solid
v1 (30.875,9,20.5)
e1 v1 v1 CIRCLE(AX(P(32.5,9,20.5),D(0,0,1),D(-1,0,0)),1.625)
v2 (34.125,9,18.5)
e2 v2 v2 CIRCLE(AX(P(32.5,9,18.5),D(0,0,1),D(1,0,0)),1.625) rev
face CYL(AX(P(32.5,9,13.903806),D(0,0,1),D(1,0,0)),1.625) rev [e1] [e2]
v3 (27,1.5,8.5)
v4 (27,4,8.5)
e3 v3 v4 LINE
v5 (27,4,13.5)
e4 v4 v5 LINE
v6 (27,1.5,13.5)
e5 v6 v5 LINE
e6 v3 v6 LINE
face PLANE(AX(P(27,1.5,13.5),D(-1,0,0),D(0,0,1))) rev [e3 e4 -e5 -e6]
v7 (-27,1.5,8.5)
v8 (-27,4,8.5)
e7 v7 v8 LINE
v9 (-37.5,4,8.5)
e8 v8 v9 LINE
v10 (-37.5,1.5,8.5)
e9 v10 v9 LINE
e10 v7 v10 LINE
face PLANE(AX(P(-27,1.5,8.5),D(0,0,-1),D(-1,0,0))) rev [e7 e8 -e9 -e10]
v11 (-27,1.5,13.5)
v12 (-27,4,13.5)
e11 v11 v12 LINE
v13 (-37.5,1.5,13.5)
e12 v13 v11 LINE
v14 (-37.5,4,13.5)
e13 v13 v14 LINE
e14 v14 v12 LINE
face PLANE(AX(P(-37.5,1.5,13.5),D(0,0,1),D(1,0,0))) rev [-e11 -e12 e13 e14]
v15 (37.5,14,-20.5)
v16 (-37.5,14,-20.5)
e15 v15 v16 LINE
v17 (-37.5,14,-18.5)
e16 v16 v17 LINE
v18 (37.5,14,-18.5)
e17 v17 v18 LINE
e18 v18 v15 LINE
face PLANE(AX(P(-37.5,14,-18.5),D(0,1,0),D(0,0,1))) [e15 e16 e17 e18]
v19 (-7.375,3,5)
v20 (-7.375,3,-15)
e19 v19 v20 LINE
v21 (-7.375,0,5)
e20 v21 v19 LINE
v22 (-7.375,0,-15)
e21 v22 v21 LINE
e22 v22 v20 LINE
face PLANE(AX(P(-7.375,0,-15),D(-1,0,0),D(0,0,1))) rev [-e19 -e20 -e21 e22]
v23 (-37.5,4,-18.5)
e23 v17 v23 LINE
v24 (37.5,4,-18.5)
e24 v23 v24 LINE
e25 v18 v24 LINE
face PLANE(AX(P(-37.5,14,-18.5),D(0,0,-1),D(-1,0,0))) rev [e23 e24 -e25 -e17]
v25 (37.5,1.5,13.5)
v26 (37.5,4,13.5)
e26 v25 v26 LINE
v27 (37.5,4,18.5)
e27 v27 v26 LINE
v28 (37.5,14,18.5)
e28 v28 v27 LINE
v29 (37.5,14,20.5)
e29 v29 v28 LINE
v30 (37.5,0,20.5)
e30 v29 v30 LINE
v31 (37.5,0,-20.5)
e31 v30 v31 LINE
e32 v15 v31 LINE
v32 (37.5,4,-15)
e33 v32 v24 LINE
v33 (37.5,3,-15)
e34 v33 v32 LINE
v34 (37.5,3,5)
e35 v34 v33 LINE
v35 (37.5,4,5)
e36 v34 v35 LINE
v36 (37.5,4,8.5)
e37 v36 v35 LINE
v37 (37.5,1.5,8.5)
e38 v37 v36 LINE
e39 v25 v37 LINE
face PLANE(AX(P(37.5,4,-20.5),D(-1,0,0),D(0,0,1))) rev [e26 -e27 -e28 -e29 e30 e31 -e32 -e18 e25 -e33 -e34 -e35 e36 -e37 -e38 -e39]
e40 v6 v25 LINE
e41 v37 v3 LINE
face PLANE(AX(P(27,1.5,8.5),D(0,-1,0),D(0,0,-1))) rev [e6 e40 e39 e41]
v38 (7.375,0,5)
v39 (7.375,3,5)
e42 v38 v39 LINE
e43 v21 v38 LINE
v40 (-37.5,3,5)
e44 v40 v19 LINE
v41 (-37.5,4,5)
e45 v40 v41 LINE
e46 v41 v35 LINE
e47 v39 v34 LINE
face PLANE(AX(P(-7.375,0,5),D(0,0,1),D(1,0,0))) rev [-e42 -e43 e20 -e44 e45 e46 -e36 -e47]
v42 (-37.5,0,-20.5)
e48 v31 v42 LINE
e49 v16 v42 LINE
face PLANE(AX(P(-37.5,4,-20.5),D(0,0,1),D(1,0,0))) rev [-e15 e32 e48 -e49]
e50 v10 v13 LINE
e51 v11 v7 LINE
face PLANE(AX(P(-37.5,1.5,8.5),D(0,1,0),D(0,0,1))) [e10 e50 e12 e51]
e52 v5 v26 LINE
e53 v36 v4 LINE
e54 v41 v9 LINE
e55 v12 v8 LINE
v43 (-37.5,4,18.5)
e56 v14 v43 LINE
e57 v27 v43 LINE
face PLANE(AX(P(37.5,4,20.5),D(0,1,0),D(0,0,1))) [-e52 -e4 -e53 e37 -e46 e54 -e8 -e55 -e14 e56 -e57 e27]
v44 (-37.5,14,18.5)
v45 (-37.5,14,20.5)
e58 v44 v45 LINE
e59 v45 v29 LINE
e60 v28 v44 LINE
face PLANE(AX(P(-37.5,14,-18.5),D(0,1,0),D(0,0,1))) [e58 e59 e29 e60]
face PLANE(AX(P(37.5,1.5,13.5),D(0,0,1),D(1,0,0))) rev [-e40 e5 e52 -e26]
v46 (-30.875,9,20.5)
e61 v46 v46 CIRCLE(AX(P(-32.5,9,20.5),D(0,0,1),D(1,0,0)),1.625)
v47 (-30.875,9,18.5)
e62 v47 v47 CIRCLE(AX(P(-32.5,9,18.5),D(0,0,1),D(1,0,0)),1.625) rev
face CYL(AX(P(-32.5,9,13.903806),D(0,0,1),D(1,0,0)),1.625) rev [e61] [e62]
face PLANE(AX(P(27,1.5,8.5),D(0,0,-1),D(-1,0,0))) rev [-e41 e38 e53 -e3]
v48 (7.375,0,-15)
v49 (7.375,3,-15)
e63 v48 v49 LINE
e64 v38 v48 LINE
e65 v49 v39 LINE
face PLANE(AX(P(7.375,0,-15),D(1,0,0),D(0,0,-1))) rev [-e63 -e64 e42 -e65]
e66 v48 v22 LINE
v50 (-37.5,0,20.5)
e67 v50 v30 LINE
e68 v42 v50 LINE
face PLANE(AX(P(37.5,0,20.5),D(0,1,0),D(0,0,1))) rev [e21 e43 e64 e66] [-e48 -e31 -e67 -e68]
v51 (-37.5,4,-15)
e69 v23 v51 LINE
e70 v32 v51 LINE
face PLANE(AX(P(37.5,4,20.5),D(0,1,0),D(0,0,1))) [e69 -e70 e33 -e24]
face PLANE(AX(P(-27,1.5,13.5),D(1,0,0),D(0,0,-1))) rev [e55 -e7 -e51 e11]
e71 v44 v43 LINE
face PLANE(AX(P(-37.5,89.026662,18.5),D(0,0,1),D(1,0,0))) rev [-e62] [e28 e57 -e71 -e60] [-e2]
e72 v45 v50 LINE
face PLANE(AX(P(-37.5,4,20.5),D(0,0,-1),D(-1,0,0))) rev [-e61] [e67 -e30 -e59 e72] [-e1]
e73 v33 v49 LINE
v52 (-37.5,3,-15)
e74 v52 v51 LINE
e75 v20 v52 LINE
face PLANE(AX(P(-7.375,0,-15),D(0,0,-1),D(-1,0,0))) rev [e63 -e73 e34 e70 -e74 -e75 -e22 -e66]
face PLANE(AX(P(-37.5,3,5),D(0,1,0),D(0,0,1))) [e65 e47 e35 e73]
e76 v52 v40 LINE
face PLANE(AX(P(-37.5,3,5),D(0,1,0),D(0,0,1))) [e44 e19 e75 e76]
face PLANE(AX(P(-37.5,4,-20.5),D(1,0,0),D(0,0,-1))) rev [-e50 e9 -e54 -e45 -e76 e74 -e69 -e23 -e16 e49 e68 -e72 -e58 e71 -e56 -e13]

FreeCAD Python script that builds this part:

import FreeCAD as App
import Part
import Sketcher
from FreeCAD import Vector
Q = App.Units.Quantity


def add_polygon(sketch, points):
    """Adds a closed chain of lines whose ends are joined by coincident constraints."""
    first, n = sketch.GeometryCount, len(points)
    for a, b in zip(points, points[1:] + points[:1]):
        sketch.addGeometry(Part.LineSegment(App.Vector(*a, 0), App.Vector(*b, 0)), False)
    for i in range(n):
        sketch.addConstraint(Sketcher.Constraint("Coincident", first + i, 2, first + (i + 1) % n, 1))

doc = App.newDocument("Part")
body = doc.addObject("PartDesign::Body", "Body")

sketch1 = body.newObject("Sketcher::SketchObject", "Sketch")
sketch1.AttachmentSupport = (doc.getObject("XZ_Plane"), [""])
sketch1.MapMode = "FlatFace"
add_polygon(sketch1, [(-37.5, -20.5), (-37.5, 20.5), (37.5, 20.5), (37.5, -20.5)])
sketch1.addConstraint(Sketcher.Constraint("Vertical", 0))
sketch1.addConstraint(Sketcher.Constraint("Horizontal", 1))
sketch1.addConstraint(Sketcher.Constraint("Vertical", 2))
sketch1.addConstraint(Sketcher.Constraint("Horizontal", 3))
sketch1.addConstraint(Sketcher.Constraint("Symmetric", 0, 2, 2, 2, -1, 1))
sketch1.addConstraint(Sketcher.Constraint("DistanceX", 1, 1, 1, 2, Q("75 mm")))
sketch1.addConstraint(Sketcher.Constraint("DistanceY", 0, 1, 0, 2, Q("41 mm")))
pad1 = body.newObject("PartDesign::Pad", "Pad")
pad1.Profile = sketch1
pad1.Length = 4
pad1.Reversed = True

sketch2 = body.newObject("Sketcher::SketchObject", "Sketch001")
sketch2.AttachmentSupport = (doc.getObject("XZ_Plane"), [""])
sketch2.MapMode = "FlatFace"
sketch2.AttachmentOffset = App.Placement(Vector(0, 0, -4), App.Rotation())
add_polygon(sketch2, [(-37.5, -20.5), (-37.5, -18.5), (37.5, -18.5), (37.5, -20.5)])
sketch2.addConstraint(Sketcher.Constraint("Vertical", 0))
sketch2.addConstraint(Sketcher.Constraint("Horizontal", 1))
sketch2.addConstraint(Sketcher.Constraint("Vertical", 2))
sketch2.addConstraint(Sketcher.Constraint("Horizontal", 3))
sketch2.addConstraint(Sketcher.Constraint("DistanceX", 1, 1, 1, 2, Q("75 mm")))
sketch2.addConstraint(Sketcher.Constraint("DistanceY", 0, 1, 0, 2, Q("2 mm")))
sketch2.addConstraint(Sketcher.Constraint("DistanceX", 0, 2, -1, 1, Q("37.5 mm")))
sketch2.addConstraint(Sketcher.Constraint("DistanceY", 0, 2, -1, 1, Q("18.5 mm")))
pad2 = body.newObject("PartDesign::Pad", "Pad001")
pad2.Profile = sketch2
pad2.Length = 10
pad2.Reversed = True

sketch3 = body.newObject("Sketcher::SketchObject", "Sketch002")
sketch3.AttachmentSupport = (doc.getObject("XZ_Plane"), [""])
sketch3.MapMode = "FlatFace"
sketch3.AttachmentOffset = App.Placement(Vector(0, 0, -4), App.Rotation())
add_polygon(sketch3, [(-37.5, 18.5), (-37.5, 20.5), (37.5, 20.5), (37.5, 18.5)])
sketch3.addConstraint(Sketcher.Constraint("Vertical", 0))
sketch3.addConstraint(Sketcher.Constraint("Horizontal", 1))
sketch3.addConstraint(Sketcher.Constraint("Vertical", 2))
sketch3.addConstraint(Sketcher.Constraint("Horizontal", 3))
sketch3.addConstraint(Sketcher.Constraint("DistanceX", 1, 1, 1, 2, Q("75 mm")))
sketch3.addConstraint(Sketcher.Constraint("DistanceY", 0, 1, 0, 2, Q("2 mm")))
sketch3.addConstraint(Sketcher.Constraint("DistanceX", 0, 2, -1, 1, Q("37.5 mm")))
sketch3.addConstraint(Sketcher.Constraint("DistanceY", -1, 1, 0, 2, Q("20.5 mm")))
pad3 = body.newObject("PartDesign::Pad", "Pad002")
pad3.Profile = sketch3
pad3.Length = 10
pad3.Reversed = True

sketch4 = body.newObject("Sketcher::SketchObject", "Sketch003")
sketch4.AttachmentSupport = (doc.getObject("XZ_Plane"), [""])
sketch4.MapMode = "FlatFace"
sketch4.AttachmentOffset = App.Placement(Vector(0, 0, -4), App.Rotation())
add_polygon(sketch4, [(-7.375, -15), (-7.375, 5), (7.375, 5), (7.375, -15)])
sketch4.addConstraint(Sketcher.Constraint("Vertical", 0))
sketch4.addConstraint(Sketcher.Constraint("Horizontal", 1))
sketch4.addConstraint(Sketcher.Constraint("Vertical", 2))
sketch4.addConstraint(Sketcher.Constraint("Horizontal", 3))
sketch4.addConstraint(Sketcher.Constraint("DistanceY", 0, 1, 0, 2, Q("20 mm")))
sketch4.addConstraint(Sketcher.Constraint("DistanceY", -1, 1, 0, 2, Q("5 mm")))
sketch4.addConstraint(Sketcher.Constraint("DistanceX", 1, 1, 1, 2, Q("14.75 mm")))
sketch4.addConstraint(Sketcher.Constraint("DistanceX", 0, 2, -1, 1, Q("7.375 mm")))
pocket1 = body.newObject("PartDesign::Pocket", "Pocket")
pocket1.Profile = sketch4
pocket1.Type = "ThroughAll"
pocket1.Reversed = True

sketch5 = body.newObject("Sketcher::SketchObject", "Sketch004")
sketch5.AttachmentSupport = (doc.getObject("XZ_Plane"), [""])
sketch5.MapMode = "FlatFace"
sketch5.AttachmentOffset = App.Placement(Vector(0, 0, -4), App.Rotation())
add_polygon(sketch5, [(-37.5, -15), (-37.5, 5), (37.5, 5), (37.5, -15)])
sketch5.addConstraint(Sketcher.Constraint("Vertical", 0))
sketch5.addConstraint(Sketcher.Constraint("Horizontal", 1))
sketch5.addConstraint(Sketcher.Constraint("Vertical", 2))
sketch5.addConstraint(Sketcher.Constraint("Horizontal", 3))
sketch5.addConstraint(Sketcher.Constraint("DistanceX", 1, 1, 1, 2, Q("75 mm")))
sketch5.addConstraint(Sketcher.Constraint("DistanceY", 0, 1, 0, 2, Q("20 mm")))
sketch5.addConstraint(Sketcher.Constraint("DistanceY", -1, 1, 0, 2, Q("5 mm")))
sketch5.addConstraint(Sketcher.Constraint("DistanceX", 0, 2, -1, 1, Q("37.5 mm")))
pocket2 = body.newObject("PartDesign::Pocket", "Pocket001")
pocket2.Profile = sketch5
pocket2.Length = 1
pocket2.Reversed = True

sketch6 = body.newObject("Sketcher::SketchObject", "Sketch005")
sketch6.AttachmentSupport = (doc.getObject("XY_Plane"), [""])
sketch6.MapMode = "FlatFace"
sketch6.AttachmentOffset = App.Placement(Vector(0, 0, 20.5), App.Rotation())
sketch6.addGeometry(Part.Circle(Vector(-32.5, 9, 0), Vector(0, 0, 1), 1.625), False)
sketch6.addGeometry(Part.Circle(Vector(32.5, 9, 0), Vector(0, 0, 1), 1.625), False)
sketch6.addConstraint(Sketcher.Constraint("Equal", 0, 1))
sketch6.addConstraint(Sketcher.Constraint("Symmetric", 0, 3, 1, 3, -2))
sketch6.addConstraint(Sketcher.Constraint("Diameter", 0, Q("3.25 mm")))
sketch6.addConstraint(Sketcher.Constraint("DistanceY", -1, 1, 0, 3, Q("9 mm")))
sketch6.addConstraint(Sketcher.Constraint("DistanceX", 0, 3, 1, 3, Q("65 mm")))
pocket3 = body.newObject("PartDesign::Pocket", "Pocket002")
pocket3.Profile = sketch6
pocket3.Length = 2

sketch7 = body.newObject("Sketcher::SketchObject", "Sketch006")
sketch7.AttachmentSupport = (doc.getObject("XZ_Plane"), [""])
sketch7.MapMode = "FlatFace"
sketch7.AttachmentOffset = App.Placement(Vector(0, 0, -4), App.Rotation())
add_polygon(sketch7, [(-37.5, 8.5), (-37.5, 13.5), (-27, 13.5), (-27, 8.5)])
add_polygon(sketch7, [(27, 8.5), (27, 13.5), (37.5, 13.5), (37.5, 8.5)])
sketch7.addConstraint(Sketcher.Constraint("Vertical", 0))
sketch7.addConstraint(Sketcher.Constraint("Horizontal", 1))
sketch7.addConstraint(Sketcher.Constraint("Vertical", 2))
sketch7.addConstraint(Sketcher.Constraint("Horizontal", 3))
sketch7.addConstraint(Sketcher.Constraint("Vertical", 4))
sketch7.addConstraint(Sketcher.Constraint("Horizontal", 5))
sketch7.addConstraint(Sketcher.Constraint("Vertical", 6))
sketch7.addConstraint(Sketcher.Constraint("Horizontal", 7))
sketch7.addConstraint(Sketcher.Constraint("Symmetric", 1, 2, 4, 2, -2))
sketch7.addConstraint(Sketcher.Constraint("Symmetric", 3, 2, 6, 2, -2))
sketch7.addConstraint(Sketcher.Constraint("DistanceY", 0, 1, 0, 2, Q("5 mm")))
sketch7.addConstraint(Sketcher.Constraint("DistanceX", 1, 1, 1, 2, Q("10.5 mm")))
sketch7.addConstraint(Sketcher.Constraint("DistanceX", 1, 2, -1, 1, Q("27 mm")))
sketch7.addConstraint(Sketcher.Constraint("DistanceY", -1, 1, 0, 2, Q("13.5 mm")))
pocket4 = body.newObject("PartDesign::Pocket", "Pocket003")
pocket4.Profile = sketch7
pocket4.Length = 2.5
pocket4.Reversed = True

doc.recompute()
